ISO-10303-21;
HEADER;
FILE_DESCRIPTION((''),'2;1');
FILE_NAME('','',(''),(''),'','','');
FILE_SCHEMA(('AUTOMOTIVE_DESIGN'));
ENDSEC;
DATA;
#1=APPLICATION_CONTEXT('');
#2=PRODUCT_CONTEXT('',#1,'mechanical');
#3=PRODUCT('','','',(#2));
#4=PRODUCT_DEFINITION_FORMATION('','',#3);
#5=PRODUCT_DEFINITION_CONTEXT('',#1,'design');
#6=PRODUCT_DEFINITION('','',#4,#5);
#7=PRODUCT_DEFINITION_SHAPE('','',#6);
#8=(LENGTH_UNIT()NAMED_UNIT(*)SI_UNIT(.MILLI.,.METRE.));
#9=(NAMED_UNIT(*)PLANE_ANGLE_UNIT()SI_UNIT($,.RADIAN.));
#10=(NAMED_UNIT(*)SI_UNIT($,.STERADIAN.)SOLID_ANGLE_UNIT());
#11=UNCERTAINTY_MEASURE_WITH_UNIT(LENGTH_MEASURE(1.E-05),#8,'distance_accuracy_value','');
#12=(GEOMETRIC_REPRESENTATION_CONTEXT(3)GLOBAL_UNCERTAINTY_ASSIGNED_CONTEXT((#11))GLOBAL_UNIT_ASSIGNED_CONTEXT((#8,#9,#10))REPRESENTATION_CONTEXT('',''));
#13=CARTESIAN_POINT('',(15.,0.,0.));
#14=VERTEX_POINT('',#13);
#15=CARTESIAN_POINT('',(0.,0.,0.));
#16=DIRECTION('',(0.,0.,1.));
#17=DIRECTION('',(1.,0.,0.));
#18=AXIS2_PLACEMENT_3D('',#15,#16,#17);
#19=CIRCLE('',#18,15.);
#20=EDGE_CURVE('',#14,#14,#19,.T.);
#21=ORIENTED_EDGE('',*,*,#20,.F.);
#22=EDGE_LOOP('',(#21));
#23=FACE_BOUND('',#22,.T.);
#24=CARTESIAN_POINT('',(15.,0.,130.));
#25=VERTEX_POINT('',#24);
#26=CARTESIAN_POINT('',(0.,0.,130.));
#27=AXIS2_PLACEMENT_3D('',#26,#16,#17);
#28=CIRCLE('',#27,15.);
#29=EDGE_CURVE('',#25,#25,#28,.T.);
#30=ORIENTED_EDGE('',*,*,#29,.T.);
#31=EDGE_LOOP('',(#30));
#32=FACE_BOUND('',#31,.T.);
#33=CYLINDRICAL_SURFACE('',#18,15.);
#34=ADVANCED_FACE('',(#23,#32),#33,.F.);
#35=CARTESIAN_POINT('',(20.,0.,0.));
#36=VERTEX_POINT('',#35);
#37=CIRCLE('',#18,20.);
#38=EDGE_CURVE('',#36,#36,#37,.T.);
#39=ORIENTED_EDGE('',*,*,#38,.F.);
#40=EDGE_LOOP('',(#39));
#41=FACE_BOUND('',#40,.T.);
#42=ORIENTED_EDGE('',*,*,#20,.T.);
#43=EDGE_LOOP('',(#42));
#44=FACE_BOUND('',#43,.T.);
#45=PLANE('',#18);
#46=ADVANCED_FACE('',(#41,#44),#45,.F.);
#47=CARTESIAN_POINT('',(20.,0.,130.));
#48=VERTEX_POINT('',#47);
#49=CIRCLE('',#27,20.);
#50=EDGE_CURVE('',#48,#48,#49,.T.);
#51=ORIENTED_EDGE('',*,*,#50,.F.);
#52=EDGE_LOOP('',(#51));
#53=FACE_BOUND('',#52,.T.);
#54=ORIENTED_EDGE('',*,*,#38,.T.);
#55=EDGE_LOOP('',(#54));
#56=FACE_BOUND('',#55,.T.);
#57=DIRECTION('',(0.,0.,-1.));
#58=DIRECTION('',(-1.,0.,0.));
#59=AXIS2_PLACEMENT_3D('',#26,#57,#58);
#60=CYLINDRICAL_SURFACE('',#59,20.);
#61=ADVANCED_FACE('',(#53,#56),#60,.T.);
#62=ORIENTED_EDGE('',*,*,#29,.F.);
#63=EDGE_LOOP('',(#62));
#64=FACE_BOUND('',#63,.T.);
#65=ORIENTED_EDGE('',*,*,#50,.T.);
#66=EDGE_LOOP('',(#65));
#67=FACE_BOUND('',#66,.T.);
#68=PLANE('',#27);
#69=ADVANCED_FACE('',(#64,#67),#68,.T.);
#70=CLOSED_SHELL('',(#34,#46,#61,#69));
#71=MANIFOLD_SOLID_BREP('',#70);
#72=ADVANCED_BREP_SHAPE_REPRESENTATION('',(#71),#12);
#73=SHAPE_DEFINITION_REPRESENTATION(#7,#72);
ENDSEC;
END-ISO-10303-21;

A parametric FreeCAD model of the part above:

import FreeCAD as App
import Part
import Sketcher
from FreeCAD import Vector
Q = App.Units.Quantity

doc = App.newDocument("Part")
body = doc.addObject("PartDesign::Body", "Body")

# Sketch on XY plane
sketch1 = doc.addObject("Sketcher::SketchObject", "Sketch")
body.addObject(sketch1)
sketch1.AttachmentSupport = (doc.XY_Plane, [""])
sketch1.MapMode = "FlatFace"
sketch1.addGeometry(Part.Circle(Vector(0, 0, 0), Vector(0, 0, 1), 20), False)
sketch1.addConstraint(Sketcher.Constraint("Coincident", 0, 3, -1, 1))
sketch1.addConstraint(Sketcher.Constraint("Diameter", 0, Q("40 mm")))
pad1 = doc.addObject("PartDesign::Pad", "Pad")
body.addObject(pad1)
pad1.Profile = sketch1
pad1.Length = 130

# Sketch on XY plane
sketch2 = doc.addObject("Sketcher::SketchObject", "Sketch001")
body.addObject(sketch2)
sketch2.AttachmentSupport = (doc.XY_Plane, [""])
sketch2.MapMode = "FlatFace"
sketch2.AttachmentOffset = App.Placement(Vector(0, 0, 130), App.Rotation())
sketch2.addGeometry(Part.Circle(Vector(0, 0, 0), Vector(0, 0, 1), 15), False)
sketch2.addConstraint(Sketcher.Constraint("Coincident", 0, 3, -1, 1))
sketch2.addConstraint(Sketcher.Constraint("Diameter", 0, Q("30 mm")))
pocket1 = doc.addObject("PartDesign::Pocket", "Pocket")
body.addObject(pocket1)
pocket1.Profile = sketch2
pocket1.Length = 130

doc.recompute()
